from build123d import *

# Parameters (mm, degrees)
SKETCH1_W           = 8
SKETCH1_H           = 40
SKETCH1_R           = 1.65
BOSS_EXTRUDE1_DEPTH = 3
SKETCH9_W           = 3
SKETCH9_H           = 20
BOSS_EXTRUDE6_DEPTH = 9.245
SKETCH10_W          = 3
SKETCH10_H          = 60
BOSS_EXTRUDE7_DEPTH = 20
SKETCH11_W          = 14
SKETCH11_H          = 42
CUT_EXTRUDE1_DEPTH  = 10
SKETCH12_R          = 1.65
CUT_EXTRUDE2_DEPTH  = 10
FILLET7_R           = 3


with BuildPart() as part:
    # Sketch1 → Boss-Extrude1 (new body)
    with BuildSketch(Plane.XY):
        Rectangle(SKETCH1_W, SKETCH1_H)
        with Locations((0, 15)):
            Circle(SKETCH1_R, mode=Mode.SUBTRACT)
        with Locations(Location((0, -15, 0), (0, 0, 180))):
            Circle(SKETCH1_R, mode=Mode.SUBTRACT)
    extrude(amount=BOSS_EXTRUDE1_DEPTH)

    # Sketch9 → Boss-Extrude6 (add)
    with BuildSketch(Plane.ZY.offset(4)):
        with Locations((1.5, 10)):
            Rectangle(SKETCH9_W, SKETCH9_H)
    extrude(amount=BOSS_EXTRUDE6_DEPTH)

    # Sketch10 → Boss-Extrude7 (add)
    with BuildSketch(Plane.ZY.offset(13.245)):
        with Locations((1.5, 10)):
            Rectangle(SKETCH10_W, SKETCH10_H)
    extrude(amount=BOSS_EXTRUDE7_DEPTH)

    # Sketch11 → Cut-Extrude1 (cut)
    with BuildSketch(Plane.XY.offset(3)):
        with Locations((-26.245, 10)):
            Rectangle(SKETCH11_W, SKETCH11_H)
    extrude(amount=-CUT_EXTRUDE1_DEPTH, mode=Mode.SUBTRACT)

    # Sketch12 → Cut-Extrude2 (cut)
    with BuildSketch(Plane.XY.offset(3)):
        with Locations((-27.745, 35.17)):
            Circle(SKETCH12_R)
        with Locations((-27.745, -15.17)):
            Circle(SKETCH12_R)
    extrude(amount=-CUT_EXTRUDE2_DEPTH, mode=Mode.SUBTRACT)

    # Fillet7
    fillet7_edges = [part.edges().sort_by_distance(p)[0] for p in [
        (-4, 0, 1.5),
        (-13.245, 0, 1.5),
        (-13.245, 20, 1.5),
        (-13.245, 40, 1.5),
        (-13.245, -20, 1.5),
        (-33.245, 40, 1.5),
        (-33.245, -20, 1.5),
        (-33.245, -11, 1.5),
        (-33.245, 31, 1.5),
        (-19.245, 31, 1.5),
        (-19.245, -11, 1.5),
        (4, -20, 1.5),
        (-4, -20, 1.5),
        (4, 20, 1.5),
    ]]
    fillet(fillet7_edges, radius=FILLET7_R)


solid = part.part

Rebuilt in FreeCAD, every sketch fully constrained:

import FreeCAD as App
import Part
import Sketcher

V = App.Vector
Q = App.Units.Quantity


def edges_at(feature, points):
    """Names of the edges that pass closest to the given points."""
    edges = feature.Shape.Edges
    near = lambda p: min(range(len(edges)), key=lambda i: edges[i].distToShape(Part.Vertex(*p))[0])
    return sorted({f"Edge{near(p) + 1}" for p in points})


def add_polygon(sketch, points):
    """Adds a closed chain of lines whose ends are joined by coincident constraints."""
    first, n = sketch.GeometryCount, len(points)
    for a, b in zip(points, points[1:] + points[:1]):
        sketch.addGeometry(Part.LineSegment(App.Vector(*a, 0), App.Vector(*b, 0)), False)
    for i in range(n):
        sketch.addConstraint(Sketcher.Constraint("Coincident", first + i, 2, first + (i + 1) % n, 1))

doc = App.newDocument("Part")
body = doc.addObject("PartDesign::Body", "Body")

# Sketch on XY plane
sketch1 = body.newObject("Sketcher::SketchObject", "Sketch")
sketch1.AttachmentSupport = (doc.getObject("XY_Plane"), [""])
sketch1.MapMode = "FlatFace"
add_polygon(sketch1, [(-4, 20), (-4, -20), (4, -20), (4, 20)])  # lines 0-3
sketch1.addGeometry(Part.Circle(V(0, -15, 0), V(0, 0, 1), 1.6), False)  # 4
sketch1.addGeometry(Part.Circle(V(0, 15, 0), V(0, 0, 1), 1.6), False)  # 5
sketch1.addConstraint([
    Sketcher.Constraint("Vertical", 0),
    Sketcher.Constraint("Horizontal", 1),
    Sketcher.Constraint("Vertical", 2),
    Sketcher.Constraint("Horizontal", 3),
    Sketcher.Constraint("Equal", 4, 5),
    Sketcher.Constraint("Symmetric", 4, 3, 5, 3, -1, 1),
    Sketcher.Constraint("Symmetric", 0, 2, 2, 2, -1, 1),
    Sketcher.Constraint("PointOnObject", 4, 3, -2),
    Sketcher.Constraint("Diameter", 4, Q("3.3 mm")),
    Sketcher.Constraint("DistanceX", 1, 1, 1, 2, Q("8 mm")),
    Sketcher.Constraint("DistanceY", 0, 2, 0, 1, Q("40 mm")),
    Sketcher.Constraint("DistanceY", 4, 3, -1, 1, Q("15 mm")),
])
pad1 = body.newObject("PartDesign::Pad", "Pad")
pad1.Profile = sketch1
pad1.Length = 3

# Sketch on YZ plane
sketch2 = body.newObject("Sketcher::SketchObject", "Sketch001")
sketch2.AttachmentSupport = (doc.getObject("YZ_Plane"), [""])
sketch2.MapMode = "FlatFace"
sketch2.AttachmentOffset = App.Placement(V(0, 0, -4), App.Rotation())
add_polygon(sketch2, [(20, 0), (0, 0), (0, 3), (20, 3)])  # lines 0-3
sketch2.addConstraint([
    Sketcher.Constraint("Horizontal", 0),
    Sketcher.Constraint("Vertical", 1),
    Sketcher.Constraint("Horizontal", 2),
    Sketcher.Constraint("Vertical", 3),
    Sketcher.Constraint("Coincident", 0, 2, -1, 1),
    Sketcher.Constraint("DistanceX", 0, 2, 0, 1, Q("20 mm")),
    Sketcher.Constraint("DistanceY", 1, 1, 1, 2, Q("3 mm")),
])
pad2 = body.newObject("PartDesign::Pad", "Pad001")
pad2.Profile = sketch2
pad2.Length = 9.245
pad2.Reversed = True

# Sketch on YZ plane
sketch3 = body.newObject("Sketcher::SketchObject", "Sketch002")
sketch3.AttachmentSupport = (doc.getObject("YZ_Plane"), [""])
sketch3.MapMode = "FlatFace"
sketch3.AttachmentOffset = App.Placement(V(0, 0, -13.245), App.Rotation())
add_polygon(sketch3, [(40, 0), (-20, 0), (-20, 3), (40, 3)])  # lines 0-3
sketch3.addConstraint([
    Sketcher.Constraint("Horizontal", 0),
    Sketcher.Constraint("Vertical", 1),
    Sketcher.Constraint("Horizontal", 2),
    Sketcher.Constraint("Vertical", 3),
    Sketcher.Constraint("PointOnObject", 0, 2, -1),
    Sketcher.Constraint("DistanceX", 0, 2, 0, 1, Q("60 mm")),
    Sketcher.Constraint("DistanceY", 1, 1, 1, 2, Q("3 mm")),
    Sketcher.Constraint("DistanceX", 0, 2, -1, 1, Q("20 mm")),
])
pad3 = body.newObject("PartDesign::Pad", "Pad002")
pad3.Profile = sketch3
pad3.Length = 20
pad3.Reversed = True

# Sketch on XY plane
sketch4 = body.newObject("Sketcher::SketchObject", "Sketch003")
sketch4.AttachmentSupport = (doc.getObject("XY_Plane"), [""])
sketch4.MapMode = "FlatFace"
sketch4.AttachmentOffset = App.Placement(V(0, 0, 3), App.Rotation())
add_polygon(sketch4, [(-33, 31), (-33, -11), (-19, -11), (-19, 31)])  # lines 0-3
sketch4.addConstraint([
    Sketcher.Constraint("Vertical", 0),
    Sketcher.Constraint("Horizontal", 1),
    Sketcher.Constraint("Vertical", 2),
    Sketcher.Constraint("Horizontal", 3),
    Sketcher.Constraint("DistanceX", 1, 1, 1, 2, Q("14 mm")),
    Sketcher.Constraint("DistanceY", 0, 2, 0, 1, Q("42 mm")),
    Sketcher.Constraint("DistanceY", 0, 2, -1, 1, Q("11 mm")),
    Sketcher.Constraint("DistanceX", 0, 2, -1, 1, Q("33.245 mm")),
])
pocket1 = body.newObject("PartDesign::Pocket", "Pocket")
pocket1.Profile = sketch4
pocket1.Length = 10

# Sketch on XY plane
sketch5 = body.newObject("Sketcher::SketchObject", "Sketch004")
sketch5.AttachmentSupport = (doc.getObject("XY_Plane"), [""])
sketch5.MapMode = "FlatFace"
sketch5.AttachmentOffset = App.Placement(V(0, 0, 3), App.Rotation())
sketch5.addGeometry([
    Part.Circle(V(-27.7, 35.2, 0), V(0, 0, 1), 1.6),
    Part.Circle(V(-27.7, -15.2, 0), V(0, 0, 1), 1.6),
], False)
sketch5.addConstraint([
    Sketcher.Constraint("Equal", 0, 1),
    Sketcher.Constraint("Vertical", 0, 3, 1, 3),
    Sketcher.Constraint("Diameter", 0, Q("3.3 mm")),
    Sketcher.Constraint("DistanceY", -1, 1, 0, 3, Q("35.17 mm")),
    Sketcher.Constraint("DistanceY", 1, 3, -1, 1, Q("15.17 mm")),
    Sketcher.Constraint("DistanceX", 0, 3, -1, 1, Q("27.745 mm")),
])
pocket2 = body.newObject("PartDesign::Pocket", "Pocket001")
pocket2.Profile = sketch5
pocket2.Length = 10
doc.recompute()

fillet = body.newObject("PartDesign::Fillet", "Fillet")
fillet.Base = (pocket2, edges_at(pocket2, [
    (-4, 0, 1.5),
    (-13.245, 0, 1.5),
    (-13.245, 20, 1.5),
    (-13.245, 40, 1.5),
    (-13.245, -20, 1.5),
    (-33.245, 40, 1.5),
    (-33.245, -20, 1.5),
    (-33.245, -11, 1.5),
    (-33.245, 31, 1.5),
    (-19.245, 31, 1.5),
    (-19.245, -11, 1.5),
    (4, -20, 1.5),
    (-4, -20, 1.5),
    (4, 20, 1.5),
]))
fillet.Radius = 3

doc.recompute()
